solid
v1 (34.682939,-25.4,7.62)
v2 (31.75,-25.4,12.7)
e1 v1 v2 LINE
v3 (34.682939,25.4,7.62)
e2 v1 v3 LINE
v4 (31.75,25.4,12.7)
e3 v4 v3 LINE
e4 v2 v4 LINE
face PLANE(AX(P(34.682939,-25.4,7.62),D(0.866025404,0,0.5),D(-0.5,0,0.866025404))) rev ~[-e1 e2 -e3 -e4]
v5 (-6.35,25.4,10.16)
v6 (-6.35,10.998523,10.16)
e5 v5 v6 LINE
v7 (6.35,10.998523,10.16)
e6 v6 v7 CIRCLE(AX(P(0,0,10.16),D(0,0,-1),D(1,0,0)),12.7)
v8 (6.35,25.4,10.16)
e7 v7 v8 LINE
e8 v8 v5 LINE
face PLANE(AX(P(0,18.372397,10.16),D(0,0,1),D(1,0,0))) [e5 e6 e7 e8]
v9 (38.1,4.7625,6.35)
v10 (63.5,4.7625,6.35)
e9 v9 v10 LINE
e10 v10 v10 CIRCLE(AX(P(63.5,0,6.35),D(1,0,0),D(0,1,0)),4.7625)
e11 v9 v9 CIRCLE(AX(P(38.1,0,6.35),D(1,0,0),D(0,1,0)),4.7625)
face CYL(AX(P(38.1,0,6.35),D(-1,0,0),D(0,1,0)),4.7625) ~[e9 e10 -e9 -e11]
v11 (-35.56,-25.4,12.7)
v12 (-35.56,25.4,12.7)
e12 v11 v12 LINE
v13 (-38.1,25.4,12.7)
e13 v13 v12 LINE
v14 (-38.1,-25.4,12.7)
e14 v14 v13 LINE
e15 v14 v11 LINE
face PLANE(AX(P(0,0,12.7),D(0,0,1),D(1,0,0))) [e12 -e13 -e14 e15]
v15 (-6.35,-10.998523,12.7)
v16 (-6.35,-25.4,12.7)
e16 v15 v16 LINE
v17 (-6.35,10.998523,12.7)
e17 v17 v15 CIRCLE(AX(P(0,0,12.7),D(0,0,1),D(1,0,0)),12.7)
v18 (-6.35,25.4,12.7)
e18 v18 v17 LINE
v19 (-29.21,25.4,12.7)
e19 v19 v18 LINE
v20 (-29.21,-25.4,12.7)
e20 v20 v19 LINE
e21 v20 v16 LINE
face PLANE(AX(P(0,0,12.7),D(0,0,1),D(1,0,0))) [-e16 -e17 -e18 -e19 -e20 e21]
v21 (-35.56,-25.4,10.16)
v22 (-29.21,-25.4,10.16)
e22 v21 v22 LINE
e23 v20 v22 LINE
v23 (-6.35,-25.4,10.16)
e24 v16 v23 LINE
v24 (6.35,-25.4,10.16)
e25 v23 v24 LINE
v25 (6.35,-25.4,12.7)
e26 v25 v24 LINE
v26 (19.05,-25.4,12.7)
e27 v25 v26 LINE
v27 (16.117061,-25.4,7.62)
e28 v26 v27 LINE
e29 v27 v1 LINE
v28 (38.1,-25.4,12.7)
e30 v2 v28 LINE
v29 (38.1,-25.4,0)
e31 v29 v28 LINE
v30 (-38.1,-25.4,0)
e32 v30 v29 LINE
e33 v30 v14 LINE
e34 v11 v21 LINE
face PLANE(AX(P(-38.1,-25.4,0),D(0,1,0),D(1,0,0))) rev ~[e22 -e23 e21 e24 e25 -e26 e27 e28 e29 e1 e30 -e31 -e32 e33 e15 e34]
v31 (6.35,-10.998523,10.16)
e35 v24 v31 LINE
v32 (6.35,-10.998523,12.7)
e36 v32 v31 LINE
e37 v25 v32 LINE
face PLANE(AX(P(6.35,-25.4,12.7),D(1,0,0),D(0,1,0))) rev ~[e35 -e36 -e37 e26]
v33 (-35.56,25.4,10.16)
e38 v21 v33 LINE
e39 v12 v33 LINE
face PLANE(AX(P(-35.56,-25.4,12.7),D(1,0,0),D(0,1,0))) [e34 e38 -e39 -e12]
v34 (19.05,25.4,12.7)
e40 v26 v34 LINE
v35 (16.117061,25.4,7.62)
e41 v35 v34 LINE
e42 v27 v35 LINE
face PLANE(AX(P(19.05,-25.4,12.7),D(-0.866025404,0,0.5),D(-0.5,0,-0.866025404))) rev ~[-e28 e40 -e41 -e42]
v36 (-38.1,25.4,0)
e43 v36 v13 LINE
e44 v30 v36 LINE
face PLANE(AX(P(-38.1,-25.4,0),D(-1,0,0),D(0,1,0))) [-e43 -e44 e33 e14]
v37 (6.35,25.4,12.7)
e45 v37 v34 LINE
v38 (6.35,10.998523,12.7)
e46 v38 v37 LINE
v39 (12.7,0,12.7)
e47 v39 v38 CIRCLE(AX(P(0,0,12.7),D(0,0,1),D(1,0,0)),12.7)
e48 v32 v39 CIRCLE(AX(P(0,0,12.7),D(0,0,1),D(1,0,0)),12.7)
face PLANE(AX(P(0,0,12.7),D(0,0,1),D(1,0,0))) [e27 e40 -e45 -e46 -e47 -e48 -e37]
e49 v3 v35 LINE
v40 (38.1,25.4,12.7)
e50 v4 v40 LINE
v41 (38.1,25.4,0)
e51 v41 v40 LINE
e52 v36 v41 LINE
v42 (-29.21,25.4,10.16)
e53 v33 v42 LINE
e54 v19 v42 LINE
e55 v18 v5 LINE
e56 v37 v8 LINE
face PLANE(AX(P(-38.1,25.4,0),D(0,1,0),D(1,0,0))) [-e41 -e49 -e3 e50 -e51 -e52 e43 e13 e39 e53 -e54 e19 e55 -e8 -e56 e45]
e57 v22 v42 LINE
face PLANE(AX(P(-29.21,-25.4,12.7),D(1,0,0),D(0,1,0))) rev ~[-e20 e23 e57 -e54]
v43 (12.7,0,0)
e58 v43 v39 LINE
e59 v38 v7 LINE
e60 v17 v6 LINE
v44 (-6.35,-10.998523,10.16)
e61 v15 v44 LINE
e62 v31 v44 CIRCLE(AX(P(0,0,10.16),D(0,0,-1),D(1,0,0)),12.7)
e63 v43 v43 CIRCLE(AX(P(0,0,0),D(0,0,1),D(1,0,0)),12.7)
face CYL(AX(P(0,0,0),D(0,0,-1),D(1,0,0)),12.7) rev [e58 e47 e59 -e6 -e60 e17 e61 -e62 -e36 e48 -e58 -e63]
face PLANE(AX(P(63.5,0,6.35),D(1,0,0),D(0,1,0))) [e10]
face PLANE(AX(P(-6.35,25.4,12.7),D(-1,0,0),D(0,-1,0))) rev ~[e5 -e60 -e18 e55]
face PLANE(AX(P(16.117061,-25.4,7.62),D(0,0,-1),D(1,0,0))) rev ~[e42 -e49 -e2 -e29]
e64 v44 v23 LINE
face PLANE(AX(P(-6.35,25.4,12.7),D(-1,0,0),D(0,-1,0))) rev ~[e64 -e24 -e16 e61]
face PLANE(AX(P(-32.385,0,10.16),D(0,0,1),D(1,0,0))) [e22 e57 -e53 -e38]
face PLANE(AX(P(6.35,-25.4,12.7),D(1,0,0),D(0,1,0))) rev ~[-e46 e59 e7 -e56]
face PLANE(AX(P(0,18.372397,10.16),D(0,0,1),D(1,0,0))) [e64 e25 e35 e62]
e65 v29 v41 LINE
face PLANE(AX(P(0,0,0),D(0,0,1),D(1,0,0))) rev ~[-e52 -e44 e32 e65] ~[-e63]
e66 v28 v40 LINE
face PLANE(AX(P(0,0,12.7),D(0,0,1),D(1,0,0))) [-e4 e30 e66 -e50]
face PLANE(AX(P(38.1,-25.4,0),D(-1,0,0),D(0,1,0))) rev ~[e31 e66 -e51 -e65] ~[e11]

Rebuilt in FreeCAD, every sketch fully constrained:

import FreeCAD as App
import Part
import Sketcher
Q = App.Units.Quantity

doc = App.newDocument("Part")
params = doc.addObject("Spreadsheet::Sheet", "Params")
for row, (alias, value) in enumerate([
    ("sketch1_diameter", "1 in"),
    ("sketch1_width", "3 in"),
    ("sketch1_height", "2 in"),
    ("pad1_length", "0.5 in"),
    ("sketch2_height", "2 in"),
    ("sketch2_width", "0.5 in"),
    ("sketch2_width2", "0.25 in"),
    ("pocket1_length", "0.1 in"),
    ("sketch3_width", "0.5 in"),
    ("sketch4_diameter", "0.375 in"),
    ("pad2_length", "1 in"),
], start=1):
    params.set(f"A{row}", alias)
    params.set(f"B{row}", "=" + value)
    params.setAlias(f"B{row}", alias)

body = doc.addObject("PartDesign::Body", "Body")

# Sketch on XY plane
sketch1 = body.newObject("Sketcher::SketchObject", "Sketch")
sketch1.AttachmentSupport = (doc.getObject("XY_Plane"), [""])
sketch1.MapMode = "FlatFace"
sketch1.addGeometry([
    Part.LineSegment(App.Vector(-38, 25, 0), App.Vector(-38, -25, 0)),  # 0
    Part.LineSegment(App.Vector(-38, -25, 0), App.Vector(38, -25, 0)),  # 1
    Part.LineSegment(App.Vector(38, -25, 0), App.Vector(38, 25, 0)),  # 2
    Part.LineSegment(App.Vector(38, 25, 0), App.Vector(-38, 25, 0)),  # 3
    Part.Circle(App.Vector(0, 0, 0), App.Vector(0, 0, 1), 13),  # 4
], False)
sketch1.addConstraint([
    Sketcher.Constraint("Coincident", 0, 2, 1, 1),
    Sketcher.Constraint("Coincident", 1, 2, 2, 1),
    Sketcher.Constraint("Coincident", 2, 2, 3, 1),
    Sketcher.Constraint("Coincident", 3, 2, 0, 1),
    Sketcher.Constraint("Vertical", 0),
    Sketcher.Constraint("Horizontal", 1),
    Sketcher.Constraint("Vertical", 2),
    Sketcher.Constraint("Horizontal", 3),
    Sketcher.Constraint("Coincident", 4, 3, -1, 1),
    Sketcher.Constraint("Symmetric", 0, 2, 2, 2, -1, 1),
    Sketcher.Constraint("Diameter", 4, Q("1 in")),
    Sketcher.Constraint("DistanceX", 1, 1, 1, 2, Q("3 in")),
    Sketcher.Constraint("DistanceY", 0, 2, 0, 1, Q("2 in")),
])
sketch1.setExpression("Constraints[10]", "Params.sketch1_diameter")
sketch1.setExpression("Constraints[11]", "Params.sketch1_width")
sketch1.setExpression("Constraints[12]", "Params.sketch1_height")
pad1 = body.newObject("PartDesign::Pad", "Pad")
pad1.Profile = sketch1
pad1.setExpression("Length", "Params.pad1_length")

# Sketch on XY plane
sketch2 = body.newObject("Sketcher::SketchObject", "Sketch001")
sketch2.AttachmentSupport = (doc.getObject("XY_Plane"), [""])
sketch2.MapMode = "FlatFace"
sketch2.AttachmentOffset = App.Placement(App.Vector(0, 0, 0.5 * 25.4), App.Rotation())
sketch2.addGeometry([
    Part.LineSegment(App.Vector(-36, 25, 0), App.Vector(-36, -25, 0)),  # 0
    Part.LineSegment(App.Vector(-36, -25, 0), App.Vector(-29, -25, 0)),  # 1
    Part.LineSegment(App.Vector(-29, -25, 0), App.Vector(-29, 25, 0)),  # 2
    Part.LineSegment(App.Vector(-29, 25, 0), App.Vector(-36, 25, 0)),  # 3
    Part.LineSegment(App.Vector(6, 25, 0), App.Vector(-6, 25, 0)),  # 4
    Part.LineSegment(App.Vector(-6, 25, 0), App.Vector(-6, -25, 0)),  # 5
    Part.LineSegment(App.Vector(-6, -25, 0), App.Vector(6, -25, 0)),  # 6
    Part.LineSegment(App.Vector(6, -25, 0), App.Vector(6, 25, 0)),  # 7
], False)
sketch2.addConstraint([
    Sketcher.Constraint("Coincident", 0, 2, 1, 1),
    Sketcher.Constraint("Coincident", 1, 2, 2, 1),
    Sketcher.Constraint("Coincident", 2, 2, 3, 1),
    Sketcher.Constraint("Coincident", 3, 2, 0, 1),
    Sketcher.Constraint("Coincident", 4, 2, 5, 1),
    Sketcher.Constraint("Coincident", 5, 2, 6, 1),
    Sketcher.Constraint("Coincident", 6, 2, 7, 1),
    Sketcher.Constraint("Coincident", 7, 2, 4, 1),
    Sketcher.Constraint("Vertical", 0),
    Sketcher.Constraint("Horizontal", 1),
    Sketcher.Constraint("Vertical", 2),
    Sketcher.Constraint("Horizontal", 3),
    Sketcher.Constraint("Horizontal", 4),
    Sketcher.Constraint("Vertical", 5),
    Sketcher.Constraint("Horizontal", 6),
    Sketcher.Constraint("Vertical", 7),
    Sketcher.Constraint("Symmetric", 4, 2, 6, 2, -1, 1),
    Sketcher.Constraint("Horizontal", 3, 2, 4, 2),
    Sketcher.Constraint("Horizontal", 1, 2, 5, 2),
    Sketcher.Constraint("DistanceY", 0, 2, 0, 1, Q("2 in")),
    Sketcher.Constraint("DistanceX", 4, 2, 4, 1, Q("0.5 in")),
    Sketcher.Constraint("DistanceX", 1, 1, 1, 2, Q("0.25 in")),
    Sketcher.Constraint("DistanceX", 0, 2, -1, 1, Q("1.4 in")),
])
sketch2.setExpression("Constraints[19]", "Params.sketch2_height")
sketch2.setExpression("Constraints[20]", "Params.sketch2_width")
sketch2.setExpression("Constraints[21]", "Params.sketch2_width2")
pocket1 = body.newObject("PartDesign::Pocket", "Pocket")
pocket1.Profile = sketch2
pocket1.setExpression("Length", "Params.pocket1_length")

# Sketch on XZ plane
sketch3 = body.newObject("Sketcher::SketchObject", "Sketch002")
sketch3.AttachmentSupport = (doc.getObject("XZ_Plane"), [""])
sketch3.MapMode = "FlatFace"
sketch3.AttachmentOffset = App.Placement(App.Vector(0, 0, 1 * 25.4), App.Rotation())
sketch3.addGeometry([
    Part.LineSegment(App.Vector(32, 13, 0), App.Vector(19, 13, 0)),
    Part.LineSegment(App.Vector(19, 13, 0), App.Vector(16, 8, 0)),
    Part.LineSegment(App.Vector(16, 8, 0), App.Vector(35, 8, 0)),
    Part.LineSegment(App.Vector(35, 8, 0), App.Vector(32, 13, 0)),
], False)
sketch3.addConstraint([
    Sketcher.Constraint("Coincident", 0, 2, 1, 1),
    Sketcher.Constraint("Coincident", 1, 2, 2, 1),
    Sketcher.Constraint("Coincident", 2, 2, 3, 1),
    Sketcher.Constraint("Coincident", 3, 2, 0, 1),
    Sketcher.Constraint("Horizontal", 0),
    Sketcher.Constraint("Horizontal", 2),
    Sketcher.Constraint("Equal", 1, 3),
    Sketcher.Constraint("DistanceX", 0, 2, 0, 1, Q("0.5 in")),
    Sketcher.Constraint("Angle", 1, Q("-120 deg")),
    Sketcher.Constraint("DistanceY", -1, 1, 0, 2, Q("0.5 in")),
    Sketcher.Constraint("DistanceY", -1, 1, 1, 2, Q("0.3 in")),
    Sketcher.Constraint("DistanceX", -1, 1, 0, 2, Q("0.75 in")),
])
sketch3.setExpression("Constraints[7]", "Params.sketch3_width")
pocket2 = body.newObject("PartDesign::Pocket", "Pocket001")
pocket2.Profile = sketch3
pocket2.Type = "ThroughAll"

# Sketch on YZ plane
sketch4 = body.newObject("Sketcher::SketchObject", "Sketch003")
sketch4.AttachmentSupport = (doc.getObject("YZ_Plane"), [""])
sketch4.MapMode = "FlatFace"
sketch4.AttachmentOffset = App.Placement(App.Vector(0, 0, 1.5 * 25.4), App.Rotation())
sketch4.addGeometry(Part.Circle(App.Vector(0, 6.3, 0), App.Vector(0, 0, 1), 4.8), False)
sketch4.addConstraint([
    Sketcher.Constraint("PointOnObject", 0, 3, -2),
    Sketcher.Constraint("Diameter", 0, Q("0.375 in")),
    Sketcher.Constraint("DistanceY", -1, 1, 0, 3, Q("0.25 in")),
])
sketch4.setExpression("Constraints[1]", "Params.sketch4_diameter")
pad2 = body.newObject("PartDesign::Pad", "Pad001")
pad2.Profile = sketch4
pad2.setExpression("Length", "Params.pad2_length")

doc.recompute()
